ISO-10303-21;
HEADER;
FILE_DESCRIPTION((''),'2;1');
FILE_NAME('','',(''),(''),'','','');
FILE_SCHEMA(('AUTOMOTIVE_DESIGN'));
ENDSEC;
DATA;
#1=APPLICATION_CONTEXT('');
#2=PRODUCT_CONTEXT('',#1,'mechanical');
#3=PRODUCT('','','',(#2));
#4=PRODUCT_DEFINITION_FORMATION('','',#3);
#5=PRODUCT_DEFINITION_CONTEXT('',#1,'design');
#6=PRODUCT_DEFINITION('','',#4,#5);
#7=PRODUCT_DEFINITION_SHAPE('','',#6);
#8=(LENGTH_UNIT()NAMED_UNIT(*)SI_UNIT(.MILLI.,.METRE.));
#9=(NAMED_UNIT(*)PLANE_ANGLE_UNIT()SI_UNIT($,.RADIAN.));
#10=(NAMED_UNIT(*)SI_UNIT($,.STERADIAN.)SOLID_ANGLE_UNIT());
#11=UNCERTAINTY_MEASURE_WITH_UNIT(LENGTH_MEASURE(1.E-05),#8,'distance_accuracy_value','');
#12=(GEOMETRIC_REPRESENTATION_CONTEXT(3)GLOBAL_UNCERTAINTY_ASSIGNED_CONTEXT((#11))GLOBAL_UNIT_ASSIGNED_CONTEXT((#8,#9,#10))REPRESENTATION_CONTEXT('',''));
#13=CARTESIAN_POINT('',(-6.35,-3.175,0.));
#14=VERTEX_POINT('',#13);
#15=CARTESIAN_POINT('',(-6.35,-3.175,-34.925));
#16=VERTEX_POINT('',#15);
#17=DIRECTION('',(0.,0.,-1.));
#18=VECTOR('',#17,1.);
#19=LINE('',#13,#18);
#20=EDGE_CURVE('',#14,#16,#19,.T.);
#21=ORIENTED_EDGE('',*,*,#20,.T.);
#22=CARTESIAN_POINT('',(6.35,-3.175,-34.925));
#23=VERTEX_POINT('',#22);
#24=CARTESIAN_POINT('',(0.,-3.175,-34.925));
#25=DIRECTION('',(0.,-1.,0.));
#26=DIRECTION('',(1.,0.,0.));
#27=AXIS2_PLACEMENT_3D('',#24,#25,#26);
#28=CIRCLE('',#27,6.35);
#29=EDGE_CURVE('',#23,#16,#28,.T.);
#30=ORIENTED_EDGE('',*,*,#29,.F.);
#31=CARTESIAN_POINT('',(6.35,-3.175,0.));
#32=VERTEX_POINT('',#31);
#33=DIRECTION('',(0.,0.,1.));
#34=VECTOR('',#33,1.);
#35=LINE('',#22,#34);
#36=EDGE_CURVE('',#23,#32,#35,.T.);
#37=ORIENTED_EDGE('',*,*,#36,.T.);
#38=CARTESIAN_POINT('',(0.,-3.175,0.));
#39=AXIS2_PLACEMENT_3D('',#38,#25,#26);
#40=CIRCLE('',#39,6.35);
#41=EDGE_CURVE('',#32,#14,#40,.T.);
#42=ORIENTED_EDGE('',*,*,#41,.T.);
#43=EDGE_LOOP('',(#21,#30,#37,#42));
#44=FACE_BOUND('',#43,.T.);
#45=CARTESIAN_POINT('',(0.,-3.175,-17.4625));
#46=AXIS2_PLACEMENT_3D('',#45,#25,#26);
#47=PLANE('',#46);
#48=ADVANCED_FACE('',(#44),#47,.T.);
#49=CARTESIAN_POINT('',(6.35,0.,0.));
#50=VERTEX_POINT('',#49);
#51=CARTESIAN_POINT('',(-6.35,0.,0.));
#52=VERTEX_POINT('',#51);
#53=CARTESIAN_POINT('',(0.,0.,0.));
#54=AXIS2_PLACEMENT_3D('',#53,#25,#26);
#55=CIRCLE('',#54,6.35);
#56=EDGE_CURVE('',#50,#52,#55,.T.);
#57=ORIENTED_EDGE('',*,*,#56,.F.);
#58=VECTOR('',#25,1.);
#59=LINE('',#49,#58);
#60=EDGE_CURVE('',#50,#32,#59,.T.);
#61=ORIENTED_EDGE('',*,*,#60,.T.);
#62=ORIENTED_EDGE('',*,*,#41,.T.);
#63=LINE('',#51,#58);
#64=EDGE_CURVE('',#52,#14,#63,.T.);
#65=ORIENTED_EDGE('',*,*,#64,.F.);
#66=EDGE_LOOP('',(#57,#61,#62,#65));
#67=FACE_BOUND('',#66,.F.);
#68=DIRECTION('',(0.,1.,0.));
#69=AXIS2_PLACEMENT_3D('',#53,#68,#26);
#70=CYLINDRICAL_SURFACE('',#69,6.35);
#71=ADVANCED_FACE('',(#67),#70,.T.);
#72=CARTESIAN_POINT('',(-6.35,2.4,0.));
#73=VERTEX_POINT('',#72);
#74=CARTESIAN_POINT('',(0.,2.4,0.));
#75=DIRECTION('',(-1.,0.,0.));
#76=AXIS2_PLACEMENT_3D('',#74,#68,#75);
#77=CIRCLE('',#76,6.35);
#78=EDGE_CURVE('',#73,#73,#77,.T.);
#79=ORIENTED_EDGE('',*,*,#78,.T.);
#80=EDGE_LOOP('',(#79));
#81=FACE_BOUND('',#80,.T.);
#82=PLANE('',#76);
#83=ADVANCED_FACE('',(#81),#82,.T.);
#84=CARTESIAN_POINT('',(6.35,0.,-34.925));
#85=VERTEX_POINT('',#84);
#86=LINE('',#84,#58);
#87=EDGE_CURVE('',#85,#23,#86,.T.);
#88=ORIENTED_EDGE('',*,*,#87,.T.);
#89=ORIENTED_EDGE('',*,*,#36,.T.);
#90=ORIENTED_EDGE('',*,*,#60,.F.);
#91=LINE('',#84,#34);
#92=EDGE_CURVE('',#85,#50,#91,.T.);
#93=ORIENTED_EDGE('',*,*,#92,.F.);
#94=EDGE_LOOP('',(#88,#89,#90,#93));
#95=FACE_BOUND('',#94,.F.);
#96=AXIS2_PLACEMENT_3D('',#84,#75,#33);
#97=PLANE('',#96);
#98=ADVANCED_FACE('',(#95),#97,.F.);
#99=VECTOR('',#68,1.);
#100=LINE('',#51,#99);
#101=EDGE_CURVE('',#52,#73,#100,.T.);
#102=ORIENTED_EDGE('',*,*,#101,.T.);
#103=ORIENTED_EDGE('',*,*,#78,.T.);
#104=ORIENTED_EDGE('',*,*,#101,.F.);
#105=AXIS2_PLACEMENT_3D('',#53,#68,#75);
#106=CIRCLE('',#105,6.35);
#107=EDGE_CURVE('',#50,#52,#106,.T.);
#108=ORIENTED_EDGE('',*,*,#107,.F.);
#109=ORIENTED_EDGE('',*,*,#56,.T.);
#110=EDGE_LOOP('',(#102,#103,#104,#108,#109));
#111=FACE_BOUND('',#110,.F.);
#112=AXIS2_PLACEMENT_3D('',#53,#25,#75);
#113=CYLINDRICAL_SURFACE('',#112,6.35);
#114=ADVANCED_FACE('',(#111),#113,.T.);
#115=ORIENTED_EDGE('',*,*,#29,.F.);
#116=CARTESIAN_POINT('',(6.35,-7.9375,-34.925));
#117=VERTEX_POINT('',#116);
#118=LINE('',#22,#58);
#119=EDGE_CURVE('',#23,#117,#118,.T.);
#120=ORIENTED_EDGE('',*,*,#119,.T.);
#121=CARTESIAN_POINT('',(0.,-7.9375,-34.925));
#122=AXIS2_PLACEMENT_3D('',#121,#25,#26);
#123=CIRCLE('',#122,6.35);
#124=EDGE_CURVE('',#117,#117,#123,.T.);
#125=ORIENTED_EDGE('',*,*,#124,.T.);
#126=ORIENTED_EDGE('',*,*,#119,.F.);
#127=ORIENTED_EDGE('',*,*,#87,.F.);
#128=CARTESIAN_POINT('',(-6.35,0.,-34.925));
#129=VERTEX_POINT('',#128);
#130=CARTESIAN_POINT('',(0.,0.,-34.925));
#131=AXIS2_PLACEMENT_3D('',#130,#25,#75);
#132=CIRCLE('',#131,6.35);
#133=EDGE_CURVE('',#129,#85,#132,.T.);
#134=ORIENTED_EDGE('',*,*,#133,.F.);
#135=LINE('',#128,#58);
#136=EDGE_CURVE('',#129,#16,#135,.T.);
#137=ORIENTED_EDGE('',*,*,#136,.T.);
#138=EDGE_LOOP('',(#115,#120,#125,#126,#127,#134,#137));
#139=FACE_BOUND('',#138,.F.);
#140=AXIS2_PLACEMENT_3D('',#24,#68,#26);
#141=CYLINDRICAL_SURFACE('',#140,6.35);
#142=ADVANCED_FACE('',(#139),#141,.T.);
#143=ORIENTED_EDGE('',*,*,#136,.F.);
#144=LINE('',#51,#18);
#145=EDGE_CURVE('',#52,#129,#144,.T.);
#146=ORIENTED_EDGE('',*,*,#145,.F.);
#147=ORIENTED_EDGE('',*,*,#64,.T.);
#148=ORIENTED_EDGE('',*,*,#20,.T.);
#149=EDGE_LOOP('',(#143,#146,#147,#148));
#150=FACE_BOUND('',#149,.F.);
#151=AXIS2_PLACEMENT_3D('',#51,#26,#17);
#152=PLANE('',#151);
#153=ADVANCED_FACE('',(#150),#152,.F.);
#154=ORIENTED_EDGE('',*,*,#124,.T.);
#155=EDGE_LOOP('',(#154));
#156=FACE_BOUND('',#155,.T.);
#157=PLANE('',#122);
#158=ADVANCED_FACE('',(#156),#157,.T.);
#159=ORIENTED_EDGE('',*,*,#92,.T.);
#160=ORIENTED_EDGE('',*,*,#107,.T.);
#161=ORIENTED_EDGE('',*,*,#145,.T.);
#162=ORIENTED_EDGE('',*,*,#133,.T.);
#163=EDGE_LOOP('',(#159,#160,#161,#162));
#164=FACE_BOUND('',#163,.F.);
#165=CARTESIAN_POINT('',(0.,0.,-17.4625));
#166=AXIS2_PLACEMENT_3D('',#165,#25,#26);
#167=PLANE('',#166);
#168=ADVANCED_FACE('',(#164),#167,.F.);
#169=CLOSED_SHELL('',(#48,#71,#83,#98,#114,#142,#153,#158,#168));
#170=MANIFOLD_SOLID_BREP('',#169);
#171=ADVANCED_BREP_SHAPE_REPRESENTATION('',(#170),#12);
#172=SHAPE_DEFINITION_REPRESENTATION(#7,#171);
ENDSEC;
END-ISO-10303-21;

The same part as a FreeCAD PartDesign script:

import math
import FreeCAD as App
import Part
import Sketcher
Q = App.Units.Quantity

doc = App.newDocument("Part")
body = doc.addObject("PartDesign::Body", "Body")

# Sketch on XZ plane
sketch1 = doc.addObject("Sketcher::SketchObject", "Sketch")
body.addObject(sketch1)
sketch1.AttachmentSupport = (doc.XZ_Plane, [""])
sketch1.MapMode = "FlatFace"
sketch1.addGeometry([
    Part.LineSegment(App.Vector(-6, 0, 0), App.Vector(-6, -35, 0)),
    Part.ArcOfCircle(Part.Circle(App.Vector(0, -35, 0), App.Vector(0, 0, 1), 6), math.radians(180), math.radians(360)),
    Part.LineSegment(App.Vector(6, -35, 0), App.Vector(6, 0, 0)),
    Part.ArcOfCircle(Part.Circle(App.Vector(0, 0, 0), App.Vector(0, 0, 1), 6), math.radians(0), math.radians(180)),
], False)
sketch1.addConstraint([
    Sketcher.Constraint("Tangent", 0, 2, 1, 1),
    Sketcher.Constraint("Tangent", 1, 2, 2, 1),
    Sketcher.Constraint("Tangent", 2, 2, 3, 1),
    Sketcher.Constraint("Tangent", 3, 2, 0, 1),
    Sketcher.Constraint("Vertical", 0),
    Sketcher.Constraint("Vertical", 2),
    Sketcher.Constraint("Coincident", 3, 3, -1, 1),
    Sketcher.Constraint("Radius", 1, Q("0.25 in")),
    Sketcher.Constraint("DistanceY", 0, 2, 0, 1, Q("1.375 in")),
])
pad1 = doc.addObject("PartDesign::Pad", "Pad")
body.addObject(pad1)
pad1.Profile = sketch1
pad1.Length = Q("0.125 in")

# Sketch on XZ plane
sketch2 = doc.addObject("Sketcher::SketchObject", "Sketch001")
body.addObject(sketch2)
sketch2.AttachmentSupport = (doc.XZ_Plane, [""])
sketch2.MapMode = "FlatFace"
sketch2.addGeometry(Part.Circle(App.Vector(0, 0, 0), App.Vector(0, 0, 1), 6), False)
sketch2.addConstraint([
    Sketcher.Constraint("Coincident", 0, 3, -1, 1),
    Sketcher.Constraint("Diameter", 0, Q("0.5 in")),
])
pad2 = doc.addObject("PartDesign::Pad", "Pad001")
body.addObject(pad2)
pad2.Profile = sketch2
pad2.Length = 2.4
pad2.Reversed = True

# Sketch on XZ plane
sketch3 = doc.addObject("Sketcher::SketchObject", "Sketch002")
body.addObject(sketch3)
sketch3.AttachmentSupport = (doc.XZ_Plane, [""])
sketch3.MapMode = "FlatFace"
sketch3.AttachmentOffset = App.Placement(App.Vector(0, 0, 0.125 * 25.4), App.Rotation())
sketch3.addGeometry(Part.Circle(App.Vector(0, -35, 0), App.Vector(0, 0, 1), 6), False)
sketch3.addConstraint([
    Sketcher.Constraint("PointOnObject", 0, 3, -2),
    Sketcher.Constraint("Diameter", 0, Q("0.5 in")),
    Sketcher.Constraint("DistanceY", 0, 3, -1, 1, Q("1.375 in")),
])
pad3 = doc.addObject("PartDesign::Pad", "Pad002")
body.addObject(pad3)
pad3.Profile = sketch3
pad3.Length = Q("0.1875 in")

doc.recompute()
